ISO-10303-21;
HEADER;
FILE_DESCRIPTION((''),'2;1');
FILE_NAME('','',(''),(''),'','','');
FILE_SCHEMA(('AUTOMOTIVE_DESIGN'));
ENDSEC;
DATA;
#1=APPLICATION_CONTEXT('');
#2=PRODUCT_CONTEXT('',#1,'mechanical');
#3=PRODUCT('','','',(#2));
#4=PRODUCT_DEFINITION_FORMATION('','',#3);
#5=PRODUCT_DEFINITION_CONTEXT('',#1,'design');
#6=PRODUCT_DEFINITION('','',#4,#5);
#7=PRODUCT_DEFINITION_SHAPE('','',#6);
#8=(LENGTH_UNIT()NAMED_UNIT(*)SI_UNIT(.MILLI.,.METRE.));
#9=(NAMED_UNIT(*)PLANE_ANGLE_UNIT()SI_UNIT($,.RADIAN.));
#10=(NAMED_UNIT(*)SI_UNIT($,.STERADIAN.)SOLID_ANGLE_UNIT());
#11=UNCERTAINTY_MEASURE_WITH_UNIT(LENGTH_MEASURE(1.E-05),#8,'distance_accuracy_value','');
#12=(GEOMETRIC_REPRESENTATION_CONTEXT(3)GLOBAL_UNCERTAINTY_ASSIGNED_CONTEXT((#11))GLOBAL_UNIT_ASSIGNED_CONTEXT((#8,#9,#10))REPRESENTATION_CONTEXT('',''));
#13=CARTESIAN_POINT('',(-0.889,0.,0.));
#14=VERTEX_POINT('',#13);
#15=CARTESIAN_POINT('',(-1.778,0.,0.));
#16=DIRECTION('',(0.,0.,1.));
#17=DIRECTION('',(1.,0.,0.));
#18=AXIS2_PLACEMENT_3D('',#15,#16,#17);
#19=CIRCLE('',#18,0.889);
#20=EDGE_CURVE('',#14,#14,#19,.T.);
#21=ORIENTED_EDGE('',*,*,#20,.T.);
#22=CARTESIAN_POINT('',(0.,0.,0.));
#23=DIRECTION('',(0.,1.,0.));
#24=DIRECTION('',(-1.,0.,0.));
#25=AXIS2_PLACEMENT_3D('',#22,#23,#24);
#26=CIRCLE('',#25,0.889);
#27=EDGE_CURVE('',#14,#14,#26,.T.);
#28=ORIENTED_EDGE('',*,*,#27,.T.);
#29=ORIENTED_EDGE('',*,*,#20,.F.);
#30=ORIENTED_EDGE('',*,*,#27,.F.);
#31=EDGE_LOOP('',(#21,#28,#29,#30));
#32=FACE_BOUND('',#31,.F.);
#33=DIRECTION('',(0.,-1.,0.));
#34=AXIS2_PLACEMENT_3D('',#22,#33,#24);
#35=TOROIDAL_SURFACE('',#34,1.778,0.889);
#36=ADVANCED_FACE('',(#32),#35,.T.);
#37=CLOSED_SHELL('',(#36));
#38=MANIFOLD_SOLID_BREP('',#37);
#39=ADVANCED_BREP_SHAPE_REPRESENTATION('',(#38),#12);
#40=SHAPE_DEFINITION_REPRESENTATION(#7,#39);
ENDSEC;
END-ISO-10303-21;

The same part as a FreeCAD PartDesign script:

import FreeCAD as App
import Part
import Sketcher
from FreeCAD import Vector
Q = App.Units.Quantity

doc = App.newDocument("Part")
body = doc.addObject("PartDesign::Body", "Body")

# Sketch on XY plane
sketch1 = doc.addObject("Sketcher::SketchObject", "Sketch")
body.addObject(sketch1)
sketch1.AttachmentSupport = (doc.XY_Plane, [""])
sketch1.MapMode = "FlatFace"
sketch1.addGeometry(Part.Circle(Vector(-1.778, 0, 0), Vector(0, 0, 1), 0.889), False)
sketch1.addConstraint(Sketcher.Constraint("PointOnObject", 0, 3, -1))
sketch1.addConstraint(Sketcher.Constraint("Diameter", 0, Q("0.07 in")))
sketch1.addConstraint(Sketcher.Constraint("DistanceX", 0, 3, -1, 1, Q("0.07 in")))
revolution = doc.addObject("PartDesign::Revolution", "Revolution")
body.addObject(revolution)
revolution.Profile = sketch1
revolution.ReferenceAxis = (sketch1, ["V_Axis"])
revolution.Angle = 360

doc.recompute()
